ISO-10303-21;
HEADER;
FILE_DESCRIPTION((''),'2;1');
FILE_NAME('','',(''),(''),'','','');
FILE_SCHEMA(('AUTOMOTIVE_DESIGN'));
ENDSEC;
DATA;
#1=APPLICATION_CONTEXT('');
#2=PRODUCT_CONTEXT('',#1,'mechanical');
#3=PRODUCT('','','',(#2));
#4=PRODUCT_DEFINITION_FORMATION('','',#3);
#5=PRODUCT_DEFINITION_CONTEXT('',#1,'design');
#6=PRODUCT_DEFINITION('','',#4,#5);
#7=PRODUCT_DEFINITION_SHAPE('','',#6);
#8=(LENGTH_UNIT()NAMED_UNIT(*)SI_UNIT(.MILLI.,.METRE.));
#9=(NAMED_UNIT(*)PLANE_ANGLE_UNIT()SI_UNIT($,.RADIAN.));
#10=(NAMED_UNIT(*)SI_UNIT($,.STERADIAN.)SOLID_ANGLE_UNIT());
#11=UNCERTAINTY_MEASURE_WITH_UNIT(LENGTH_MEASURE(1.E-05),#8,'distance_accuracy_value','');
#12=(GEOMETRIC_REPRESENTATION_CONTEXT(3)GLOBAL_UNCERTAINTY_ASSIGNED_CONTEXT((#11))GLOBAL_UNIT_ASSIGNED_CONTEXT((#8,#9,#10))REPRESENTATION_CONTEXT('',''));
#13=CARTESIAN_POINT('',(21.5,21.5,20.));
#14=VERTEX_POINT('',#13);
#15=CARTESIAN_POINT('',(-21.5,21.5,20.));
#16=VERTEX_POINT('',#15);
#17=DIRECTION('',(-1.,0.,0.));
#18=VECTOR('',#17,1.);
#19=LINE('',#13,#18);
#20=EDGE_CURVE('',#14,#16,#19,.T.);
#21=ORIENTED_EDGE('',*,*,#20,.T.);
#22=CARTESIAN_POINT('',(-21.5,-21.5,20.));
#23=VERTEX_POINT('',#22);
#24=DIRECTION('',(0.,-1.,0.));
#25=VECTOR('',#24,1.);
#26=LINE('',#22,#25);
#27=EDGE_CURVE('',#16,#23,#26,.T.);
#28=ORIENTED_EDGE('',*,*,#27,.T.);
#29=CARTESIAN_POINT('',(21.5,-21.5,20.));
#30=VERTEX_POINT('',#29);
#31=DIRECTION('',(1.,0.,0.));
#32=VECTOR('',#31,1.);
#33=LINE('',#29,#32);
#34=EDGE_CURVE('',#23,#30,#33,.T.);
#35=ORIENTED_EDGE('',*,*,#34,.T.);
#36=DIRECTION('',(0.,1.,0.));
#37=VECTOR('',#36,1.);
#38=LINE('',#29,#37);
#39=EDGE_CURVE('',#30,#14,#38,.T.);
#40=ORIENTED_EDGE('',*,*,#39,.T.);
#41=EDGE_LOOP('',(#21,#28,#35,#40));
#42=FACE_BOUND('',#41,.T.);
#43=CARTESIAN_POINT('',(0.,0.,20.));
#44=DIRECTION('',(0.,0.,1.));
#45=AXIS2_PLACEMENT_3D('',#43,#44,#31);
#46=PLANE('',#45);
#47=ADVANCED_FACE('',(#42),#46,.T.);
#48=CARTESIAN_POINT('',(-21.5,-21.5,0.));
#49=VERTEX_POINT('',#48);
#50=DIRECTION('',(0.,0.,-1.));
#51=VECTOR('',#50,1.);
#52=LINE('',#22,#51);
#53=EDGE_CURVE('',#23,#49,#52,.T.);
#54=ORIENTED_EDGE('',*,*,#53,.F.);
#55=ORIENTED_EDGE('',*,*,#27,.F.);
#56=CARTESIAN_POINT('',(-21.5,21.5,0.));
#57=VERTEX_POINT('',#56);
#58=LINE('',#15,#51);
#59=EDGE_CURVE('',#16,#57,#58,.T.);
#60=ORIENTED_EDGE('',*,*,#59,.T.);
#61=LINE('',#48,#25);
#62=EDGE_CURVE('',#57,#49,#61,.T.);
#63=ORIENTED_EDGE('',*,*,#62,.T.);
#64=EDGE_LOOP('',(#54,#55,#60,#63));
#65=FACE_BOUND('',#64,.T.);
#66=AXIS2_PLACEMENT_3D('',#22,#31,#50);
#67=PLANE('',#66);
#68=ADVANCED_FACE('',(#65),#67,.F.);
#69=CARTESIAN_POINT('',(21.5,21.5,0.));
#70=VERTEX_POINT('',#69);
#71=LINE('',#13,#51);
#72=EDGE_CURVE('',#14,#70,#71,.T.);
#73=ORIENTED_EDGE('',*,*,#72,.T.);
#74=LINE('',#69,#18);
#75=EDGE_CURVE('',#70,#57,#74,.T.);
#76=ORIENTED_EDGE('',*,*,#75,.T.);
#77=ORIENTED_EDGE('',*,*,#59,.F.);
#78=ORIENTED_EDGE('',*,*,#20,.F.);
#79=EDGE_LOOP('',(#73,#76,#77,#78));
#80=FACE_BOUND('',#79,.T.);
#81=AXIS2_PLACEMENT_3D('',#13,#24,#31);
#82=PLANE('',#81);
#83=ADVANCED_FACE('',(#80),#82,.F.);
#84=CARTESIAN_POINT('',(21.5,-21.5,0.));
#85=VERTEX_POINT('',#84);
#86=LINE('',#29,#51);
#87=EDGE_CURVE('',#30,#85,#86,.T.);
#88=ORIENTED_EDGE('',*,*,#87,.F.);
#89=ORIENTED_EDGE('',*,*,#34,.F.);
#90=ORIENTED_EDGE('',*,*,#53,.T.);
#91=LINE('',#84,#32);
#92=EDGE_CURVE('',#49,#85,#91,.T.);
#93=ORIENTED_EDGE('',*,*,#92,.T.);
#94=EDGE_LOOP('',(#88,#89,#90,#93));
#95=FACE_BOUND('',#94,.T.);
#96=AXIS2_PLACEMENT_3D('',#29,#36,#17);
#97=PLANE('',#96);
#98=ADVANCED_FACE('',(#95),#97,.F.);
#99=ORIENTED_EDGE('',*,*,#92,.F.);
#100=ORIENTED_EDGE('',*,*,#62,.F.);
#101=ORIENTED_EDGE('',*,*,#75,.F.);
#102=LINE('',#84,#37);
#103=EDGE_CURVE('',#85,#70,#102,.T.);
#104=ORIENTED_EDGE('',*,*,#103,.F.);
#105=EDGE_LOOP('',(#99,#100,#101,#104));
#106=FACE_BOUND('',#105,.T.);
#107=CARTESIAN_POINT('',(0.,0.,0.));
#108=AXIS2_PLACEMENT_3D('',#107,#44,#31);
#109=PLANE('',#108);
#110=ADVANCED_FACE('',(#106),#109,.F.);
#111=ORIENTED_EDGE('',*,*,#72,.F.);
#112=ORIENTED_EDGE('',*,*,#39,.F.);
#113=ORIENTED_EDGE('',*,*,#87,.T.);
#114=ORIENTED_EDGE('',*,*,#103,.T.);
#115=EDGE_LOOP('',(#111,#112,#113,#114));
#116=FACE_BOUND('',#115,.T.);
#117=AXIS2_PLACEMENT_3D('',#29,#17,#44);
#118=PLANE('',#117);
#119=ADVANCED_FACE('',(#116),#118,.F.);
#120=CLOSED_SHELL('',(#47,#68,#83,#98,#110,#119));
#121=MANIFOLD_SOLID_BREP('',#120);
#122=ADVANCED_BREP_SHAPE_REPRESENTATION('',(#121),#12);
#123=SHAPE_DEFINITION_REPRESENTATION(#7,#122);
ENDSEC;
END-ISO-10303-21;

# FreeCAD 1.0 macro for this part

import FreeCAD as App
import Part
import Sketcher
from FreeCAD import Vector


def add_polygon(sketch, points):
    """Adds a closed chain of lines whose ends are joined by coincident constraints."""
    first, n = sketch.GeometryCount, len(points)
    for a, b in zip(points, points[1:] + points[:1]):
        sketch.addGeometry(Part.LineSegment(App.Vector(*a, 0), App.Vector(*b, 0)), False)
    for i in range(n):
        sketch.addConstraint(Sketcher.Constraint("Coincident", first + i, 2, first + (i + 1) % n, 1))

doc = App.newDocument("Part")
body = doc.addObject("PartDesign::Body", "Body")

sketch1 = body.newObject("Sketcher::SketchObject", "Sketch")
sketch1.AttachmentSupport = (doc.getObject("XY_Plane"), [""])
sketch1.MapMode = "FlatFace"
add_polygon(sketch1, [(-22, 22), (-22, -22), (22, -22), (22, 22)])
sketch1.addConstraint([
    Sketcher.Constraint("Vertical", 0),
    Sketcher.Constraint("Horizontal", 1),
    Sketcher.Constraint("Vertical", 2),
    Sketcher.Constraint("Horizontal", 3),
    Sketcher.Constraint("Symmetric", 0, 2, 2, 2, -1, 1),
    Sketcher.Constraint("Equal", 3, 0),
    Sketcher.Constraint("DistanceX", 1, 1, 1, 2, 43.0),
])
pad1 = body.newObject("PartDesign::Pad", "Pad")
pad1.Profile = sketch1
pad1.Length = 20

doc.recompute()
